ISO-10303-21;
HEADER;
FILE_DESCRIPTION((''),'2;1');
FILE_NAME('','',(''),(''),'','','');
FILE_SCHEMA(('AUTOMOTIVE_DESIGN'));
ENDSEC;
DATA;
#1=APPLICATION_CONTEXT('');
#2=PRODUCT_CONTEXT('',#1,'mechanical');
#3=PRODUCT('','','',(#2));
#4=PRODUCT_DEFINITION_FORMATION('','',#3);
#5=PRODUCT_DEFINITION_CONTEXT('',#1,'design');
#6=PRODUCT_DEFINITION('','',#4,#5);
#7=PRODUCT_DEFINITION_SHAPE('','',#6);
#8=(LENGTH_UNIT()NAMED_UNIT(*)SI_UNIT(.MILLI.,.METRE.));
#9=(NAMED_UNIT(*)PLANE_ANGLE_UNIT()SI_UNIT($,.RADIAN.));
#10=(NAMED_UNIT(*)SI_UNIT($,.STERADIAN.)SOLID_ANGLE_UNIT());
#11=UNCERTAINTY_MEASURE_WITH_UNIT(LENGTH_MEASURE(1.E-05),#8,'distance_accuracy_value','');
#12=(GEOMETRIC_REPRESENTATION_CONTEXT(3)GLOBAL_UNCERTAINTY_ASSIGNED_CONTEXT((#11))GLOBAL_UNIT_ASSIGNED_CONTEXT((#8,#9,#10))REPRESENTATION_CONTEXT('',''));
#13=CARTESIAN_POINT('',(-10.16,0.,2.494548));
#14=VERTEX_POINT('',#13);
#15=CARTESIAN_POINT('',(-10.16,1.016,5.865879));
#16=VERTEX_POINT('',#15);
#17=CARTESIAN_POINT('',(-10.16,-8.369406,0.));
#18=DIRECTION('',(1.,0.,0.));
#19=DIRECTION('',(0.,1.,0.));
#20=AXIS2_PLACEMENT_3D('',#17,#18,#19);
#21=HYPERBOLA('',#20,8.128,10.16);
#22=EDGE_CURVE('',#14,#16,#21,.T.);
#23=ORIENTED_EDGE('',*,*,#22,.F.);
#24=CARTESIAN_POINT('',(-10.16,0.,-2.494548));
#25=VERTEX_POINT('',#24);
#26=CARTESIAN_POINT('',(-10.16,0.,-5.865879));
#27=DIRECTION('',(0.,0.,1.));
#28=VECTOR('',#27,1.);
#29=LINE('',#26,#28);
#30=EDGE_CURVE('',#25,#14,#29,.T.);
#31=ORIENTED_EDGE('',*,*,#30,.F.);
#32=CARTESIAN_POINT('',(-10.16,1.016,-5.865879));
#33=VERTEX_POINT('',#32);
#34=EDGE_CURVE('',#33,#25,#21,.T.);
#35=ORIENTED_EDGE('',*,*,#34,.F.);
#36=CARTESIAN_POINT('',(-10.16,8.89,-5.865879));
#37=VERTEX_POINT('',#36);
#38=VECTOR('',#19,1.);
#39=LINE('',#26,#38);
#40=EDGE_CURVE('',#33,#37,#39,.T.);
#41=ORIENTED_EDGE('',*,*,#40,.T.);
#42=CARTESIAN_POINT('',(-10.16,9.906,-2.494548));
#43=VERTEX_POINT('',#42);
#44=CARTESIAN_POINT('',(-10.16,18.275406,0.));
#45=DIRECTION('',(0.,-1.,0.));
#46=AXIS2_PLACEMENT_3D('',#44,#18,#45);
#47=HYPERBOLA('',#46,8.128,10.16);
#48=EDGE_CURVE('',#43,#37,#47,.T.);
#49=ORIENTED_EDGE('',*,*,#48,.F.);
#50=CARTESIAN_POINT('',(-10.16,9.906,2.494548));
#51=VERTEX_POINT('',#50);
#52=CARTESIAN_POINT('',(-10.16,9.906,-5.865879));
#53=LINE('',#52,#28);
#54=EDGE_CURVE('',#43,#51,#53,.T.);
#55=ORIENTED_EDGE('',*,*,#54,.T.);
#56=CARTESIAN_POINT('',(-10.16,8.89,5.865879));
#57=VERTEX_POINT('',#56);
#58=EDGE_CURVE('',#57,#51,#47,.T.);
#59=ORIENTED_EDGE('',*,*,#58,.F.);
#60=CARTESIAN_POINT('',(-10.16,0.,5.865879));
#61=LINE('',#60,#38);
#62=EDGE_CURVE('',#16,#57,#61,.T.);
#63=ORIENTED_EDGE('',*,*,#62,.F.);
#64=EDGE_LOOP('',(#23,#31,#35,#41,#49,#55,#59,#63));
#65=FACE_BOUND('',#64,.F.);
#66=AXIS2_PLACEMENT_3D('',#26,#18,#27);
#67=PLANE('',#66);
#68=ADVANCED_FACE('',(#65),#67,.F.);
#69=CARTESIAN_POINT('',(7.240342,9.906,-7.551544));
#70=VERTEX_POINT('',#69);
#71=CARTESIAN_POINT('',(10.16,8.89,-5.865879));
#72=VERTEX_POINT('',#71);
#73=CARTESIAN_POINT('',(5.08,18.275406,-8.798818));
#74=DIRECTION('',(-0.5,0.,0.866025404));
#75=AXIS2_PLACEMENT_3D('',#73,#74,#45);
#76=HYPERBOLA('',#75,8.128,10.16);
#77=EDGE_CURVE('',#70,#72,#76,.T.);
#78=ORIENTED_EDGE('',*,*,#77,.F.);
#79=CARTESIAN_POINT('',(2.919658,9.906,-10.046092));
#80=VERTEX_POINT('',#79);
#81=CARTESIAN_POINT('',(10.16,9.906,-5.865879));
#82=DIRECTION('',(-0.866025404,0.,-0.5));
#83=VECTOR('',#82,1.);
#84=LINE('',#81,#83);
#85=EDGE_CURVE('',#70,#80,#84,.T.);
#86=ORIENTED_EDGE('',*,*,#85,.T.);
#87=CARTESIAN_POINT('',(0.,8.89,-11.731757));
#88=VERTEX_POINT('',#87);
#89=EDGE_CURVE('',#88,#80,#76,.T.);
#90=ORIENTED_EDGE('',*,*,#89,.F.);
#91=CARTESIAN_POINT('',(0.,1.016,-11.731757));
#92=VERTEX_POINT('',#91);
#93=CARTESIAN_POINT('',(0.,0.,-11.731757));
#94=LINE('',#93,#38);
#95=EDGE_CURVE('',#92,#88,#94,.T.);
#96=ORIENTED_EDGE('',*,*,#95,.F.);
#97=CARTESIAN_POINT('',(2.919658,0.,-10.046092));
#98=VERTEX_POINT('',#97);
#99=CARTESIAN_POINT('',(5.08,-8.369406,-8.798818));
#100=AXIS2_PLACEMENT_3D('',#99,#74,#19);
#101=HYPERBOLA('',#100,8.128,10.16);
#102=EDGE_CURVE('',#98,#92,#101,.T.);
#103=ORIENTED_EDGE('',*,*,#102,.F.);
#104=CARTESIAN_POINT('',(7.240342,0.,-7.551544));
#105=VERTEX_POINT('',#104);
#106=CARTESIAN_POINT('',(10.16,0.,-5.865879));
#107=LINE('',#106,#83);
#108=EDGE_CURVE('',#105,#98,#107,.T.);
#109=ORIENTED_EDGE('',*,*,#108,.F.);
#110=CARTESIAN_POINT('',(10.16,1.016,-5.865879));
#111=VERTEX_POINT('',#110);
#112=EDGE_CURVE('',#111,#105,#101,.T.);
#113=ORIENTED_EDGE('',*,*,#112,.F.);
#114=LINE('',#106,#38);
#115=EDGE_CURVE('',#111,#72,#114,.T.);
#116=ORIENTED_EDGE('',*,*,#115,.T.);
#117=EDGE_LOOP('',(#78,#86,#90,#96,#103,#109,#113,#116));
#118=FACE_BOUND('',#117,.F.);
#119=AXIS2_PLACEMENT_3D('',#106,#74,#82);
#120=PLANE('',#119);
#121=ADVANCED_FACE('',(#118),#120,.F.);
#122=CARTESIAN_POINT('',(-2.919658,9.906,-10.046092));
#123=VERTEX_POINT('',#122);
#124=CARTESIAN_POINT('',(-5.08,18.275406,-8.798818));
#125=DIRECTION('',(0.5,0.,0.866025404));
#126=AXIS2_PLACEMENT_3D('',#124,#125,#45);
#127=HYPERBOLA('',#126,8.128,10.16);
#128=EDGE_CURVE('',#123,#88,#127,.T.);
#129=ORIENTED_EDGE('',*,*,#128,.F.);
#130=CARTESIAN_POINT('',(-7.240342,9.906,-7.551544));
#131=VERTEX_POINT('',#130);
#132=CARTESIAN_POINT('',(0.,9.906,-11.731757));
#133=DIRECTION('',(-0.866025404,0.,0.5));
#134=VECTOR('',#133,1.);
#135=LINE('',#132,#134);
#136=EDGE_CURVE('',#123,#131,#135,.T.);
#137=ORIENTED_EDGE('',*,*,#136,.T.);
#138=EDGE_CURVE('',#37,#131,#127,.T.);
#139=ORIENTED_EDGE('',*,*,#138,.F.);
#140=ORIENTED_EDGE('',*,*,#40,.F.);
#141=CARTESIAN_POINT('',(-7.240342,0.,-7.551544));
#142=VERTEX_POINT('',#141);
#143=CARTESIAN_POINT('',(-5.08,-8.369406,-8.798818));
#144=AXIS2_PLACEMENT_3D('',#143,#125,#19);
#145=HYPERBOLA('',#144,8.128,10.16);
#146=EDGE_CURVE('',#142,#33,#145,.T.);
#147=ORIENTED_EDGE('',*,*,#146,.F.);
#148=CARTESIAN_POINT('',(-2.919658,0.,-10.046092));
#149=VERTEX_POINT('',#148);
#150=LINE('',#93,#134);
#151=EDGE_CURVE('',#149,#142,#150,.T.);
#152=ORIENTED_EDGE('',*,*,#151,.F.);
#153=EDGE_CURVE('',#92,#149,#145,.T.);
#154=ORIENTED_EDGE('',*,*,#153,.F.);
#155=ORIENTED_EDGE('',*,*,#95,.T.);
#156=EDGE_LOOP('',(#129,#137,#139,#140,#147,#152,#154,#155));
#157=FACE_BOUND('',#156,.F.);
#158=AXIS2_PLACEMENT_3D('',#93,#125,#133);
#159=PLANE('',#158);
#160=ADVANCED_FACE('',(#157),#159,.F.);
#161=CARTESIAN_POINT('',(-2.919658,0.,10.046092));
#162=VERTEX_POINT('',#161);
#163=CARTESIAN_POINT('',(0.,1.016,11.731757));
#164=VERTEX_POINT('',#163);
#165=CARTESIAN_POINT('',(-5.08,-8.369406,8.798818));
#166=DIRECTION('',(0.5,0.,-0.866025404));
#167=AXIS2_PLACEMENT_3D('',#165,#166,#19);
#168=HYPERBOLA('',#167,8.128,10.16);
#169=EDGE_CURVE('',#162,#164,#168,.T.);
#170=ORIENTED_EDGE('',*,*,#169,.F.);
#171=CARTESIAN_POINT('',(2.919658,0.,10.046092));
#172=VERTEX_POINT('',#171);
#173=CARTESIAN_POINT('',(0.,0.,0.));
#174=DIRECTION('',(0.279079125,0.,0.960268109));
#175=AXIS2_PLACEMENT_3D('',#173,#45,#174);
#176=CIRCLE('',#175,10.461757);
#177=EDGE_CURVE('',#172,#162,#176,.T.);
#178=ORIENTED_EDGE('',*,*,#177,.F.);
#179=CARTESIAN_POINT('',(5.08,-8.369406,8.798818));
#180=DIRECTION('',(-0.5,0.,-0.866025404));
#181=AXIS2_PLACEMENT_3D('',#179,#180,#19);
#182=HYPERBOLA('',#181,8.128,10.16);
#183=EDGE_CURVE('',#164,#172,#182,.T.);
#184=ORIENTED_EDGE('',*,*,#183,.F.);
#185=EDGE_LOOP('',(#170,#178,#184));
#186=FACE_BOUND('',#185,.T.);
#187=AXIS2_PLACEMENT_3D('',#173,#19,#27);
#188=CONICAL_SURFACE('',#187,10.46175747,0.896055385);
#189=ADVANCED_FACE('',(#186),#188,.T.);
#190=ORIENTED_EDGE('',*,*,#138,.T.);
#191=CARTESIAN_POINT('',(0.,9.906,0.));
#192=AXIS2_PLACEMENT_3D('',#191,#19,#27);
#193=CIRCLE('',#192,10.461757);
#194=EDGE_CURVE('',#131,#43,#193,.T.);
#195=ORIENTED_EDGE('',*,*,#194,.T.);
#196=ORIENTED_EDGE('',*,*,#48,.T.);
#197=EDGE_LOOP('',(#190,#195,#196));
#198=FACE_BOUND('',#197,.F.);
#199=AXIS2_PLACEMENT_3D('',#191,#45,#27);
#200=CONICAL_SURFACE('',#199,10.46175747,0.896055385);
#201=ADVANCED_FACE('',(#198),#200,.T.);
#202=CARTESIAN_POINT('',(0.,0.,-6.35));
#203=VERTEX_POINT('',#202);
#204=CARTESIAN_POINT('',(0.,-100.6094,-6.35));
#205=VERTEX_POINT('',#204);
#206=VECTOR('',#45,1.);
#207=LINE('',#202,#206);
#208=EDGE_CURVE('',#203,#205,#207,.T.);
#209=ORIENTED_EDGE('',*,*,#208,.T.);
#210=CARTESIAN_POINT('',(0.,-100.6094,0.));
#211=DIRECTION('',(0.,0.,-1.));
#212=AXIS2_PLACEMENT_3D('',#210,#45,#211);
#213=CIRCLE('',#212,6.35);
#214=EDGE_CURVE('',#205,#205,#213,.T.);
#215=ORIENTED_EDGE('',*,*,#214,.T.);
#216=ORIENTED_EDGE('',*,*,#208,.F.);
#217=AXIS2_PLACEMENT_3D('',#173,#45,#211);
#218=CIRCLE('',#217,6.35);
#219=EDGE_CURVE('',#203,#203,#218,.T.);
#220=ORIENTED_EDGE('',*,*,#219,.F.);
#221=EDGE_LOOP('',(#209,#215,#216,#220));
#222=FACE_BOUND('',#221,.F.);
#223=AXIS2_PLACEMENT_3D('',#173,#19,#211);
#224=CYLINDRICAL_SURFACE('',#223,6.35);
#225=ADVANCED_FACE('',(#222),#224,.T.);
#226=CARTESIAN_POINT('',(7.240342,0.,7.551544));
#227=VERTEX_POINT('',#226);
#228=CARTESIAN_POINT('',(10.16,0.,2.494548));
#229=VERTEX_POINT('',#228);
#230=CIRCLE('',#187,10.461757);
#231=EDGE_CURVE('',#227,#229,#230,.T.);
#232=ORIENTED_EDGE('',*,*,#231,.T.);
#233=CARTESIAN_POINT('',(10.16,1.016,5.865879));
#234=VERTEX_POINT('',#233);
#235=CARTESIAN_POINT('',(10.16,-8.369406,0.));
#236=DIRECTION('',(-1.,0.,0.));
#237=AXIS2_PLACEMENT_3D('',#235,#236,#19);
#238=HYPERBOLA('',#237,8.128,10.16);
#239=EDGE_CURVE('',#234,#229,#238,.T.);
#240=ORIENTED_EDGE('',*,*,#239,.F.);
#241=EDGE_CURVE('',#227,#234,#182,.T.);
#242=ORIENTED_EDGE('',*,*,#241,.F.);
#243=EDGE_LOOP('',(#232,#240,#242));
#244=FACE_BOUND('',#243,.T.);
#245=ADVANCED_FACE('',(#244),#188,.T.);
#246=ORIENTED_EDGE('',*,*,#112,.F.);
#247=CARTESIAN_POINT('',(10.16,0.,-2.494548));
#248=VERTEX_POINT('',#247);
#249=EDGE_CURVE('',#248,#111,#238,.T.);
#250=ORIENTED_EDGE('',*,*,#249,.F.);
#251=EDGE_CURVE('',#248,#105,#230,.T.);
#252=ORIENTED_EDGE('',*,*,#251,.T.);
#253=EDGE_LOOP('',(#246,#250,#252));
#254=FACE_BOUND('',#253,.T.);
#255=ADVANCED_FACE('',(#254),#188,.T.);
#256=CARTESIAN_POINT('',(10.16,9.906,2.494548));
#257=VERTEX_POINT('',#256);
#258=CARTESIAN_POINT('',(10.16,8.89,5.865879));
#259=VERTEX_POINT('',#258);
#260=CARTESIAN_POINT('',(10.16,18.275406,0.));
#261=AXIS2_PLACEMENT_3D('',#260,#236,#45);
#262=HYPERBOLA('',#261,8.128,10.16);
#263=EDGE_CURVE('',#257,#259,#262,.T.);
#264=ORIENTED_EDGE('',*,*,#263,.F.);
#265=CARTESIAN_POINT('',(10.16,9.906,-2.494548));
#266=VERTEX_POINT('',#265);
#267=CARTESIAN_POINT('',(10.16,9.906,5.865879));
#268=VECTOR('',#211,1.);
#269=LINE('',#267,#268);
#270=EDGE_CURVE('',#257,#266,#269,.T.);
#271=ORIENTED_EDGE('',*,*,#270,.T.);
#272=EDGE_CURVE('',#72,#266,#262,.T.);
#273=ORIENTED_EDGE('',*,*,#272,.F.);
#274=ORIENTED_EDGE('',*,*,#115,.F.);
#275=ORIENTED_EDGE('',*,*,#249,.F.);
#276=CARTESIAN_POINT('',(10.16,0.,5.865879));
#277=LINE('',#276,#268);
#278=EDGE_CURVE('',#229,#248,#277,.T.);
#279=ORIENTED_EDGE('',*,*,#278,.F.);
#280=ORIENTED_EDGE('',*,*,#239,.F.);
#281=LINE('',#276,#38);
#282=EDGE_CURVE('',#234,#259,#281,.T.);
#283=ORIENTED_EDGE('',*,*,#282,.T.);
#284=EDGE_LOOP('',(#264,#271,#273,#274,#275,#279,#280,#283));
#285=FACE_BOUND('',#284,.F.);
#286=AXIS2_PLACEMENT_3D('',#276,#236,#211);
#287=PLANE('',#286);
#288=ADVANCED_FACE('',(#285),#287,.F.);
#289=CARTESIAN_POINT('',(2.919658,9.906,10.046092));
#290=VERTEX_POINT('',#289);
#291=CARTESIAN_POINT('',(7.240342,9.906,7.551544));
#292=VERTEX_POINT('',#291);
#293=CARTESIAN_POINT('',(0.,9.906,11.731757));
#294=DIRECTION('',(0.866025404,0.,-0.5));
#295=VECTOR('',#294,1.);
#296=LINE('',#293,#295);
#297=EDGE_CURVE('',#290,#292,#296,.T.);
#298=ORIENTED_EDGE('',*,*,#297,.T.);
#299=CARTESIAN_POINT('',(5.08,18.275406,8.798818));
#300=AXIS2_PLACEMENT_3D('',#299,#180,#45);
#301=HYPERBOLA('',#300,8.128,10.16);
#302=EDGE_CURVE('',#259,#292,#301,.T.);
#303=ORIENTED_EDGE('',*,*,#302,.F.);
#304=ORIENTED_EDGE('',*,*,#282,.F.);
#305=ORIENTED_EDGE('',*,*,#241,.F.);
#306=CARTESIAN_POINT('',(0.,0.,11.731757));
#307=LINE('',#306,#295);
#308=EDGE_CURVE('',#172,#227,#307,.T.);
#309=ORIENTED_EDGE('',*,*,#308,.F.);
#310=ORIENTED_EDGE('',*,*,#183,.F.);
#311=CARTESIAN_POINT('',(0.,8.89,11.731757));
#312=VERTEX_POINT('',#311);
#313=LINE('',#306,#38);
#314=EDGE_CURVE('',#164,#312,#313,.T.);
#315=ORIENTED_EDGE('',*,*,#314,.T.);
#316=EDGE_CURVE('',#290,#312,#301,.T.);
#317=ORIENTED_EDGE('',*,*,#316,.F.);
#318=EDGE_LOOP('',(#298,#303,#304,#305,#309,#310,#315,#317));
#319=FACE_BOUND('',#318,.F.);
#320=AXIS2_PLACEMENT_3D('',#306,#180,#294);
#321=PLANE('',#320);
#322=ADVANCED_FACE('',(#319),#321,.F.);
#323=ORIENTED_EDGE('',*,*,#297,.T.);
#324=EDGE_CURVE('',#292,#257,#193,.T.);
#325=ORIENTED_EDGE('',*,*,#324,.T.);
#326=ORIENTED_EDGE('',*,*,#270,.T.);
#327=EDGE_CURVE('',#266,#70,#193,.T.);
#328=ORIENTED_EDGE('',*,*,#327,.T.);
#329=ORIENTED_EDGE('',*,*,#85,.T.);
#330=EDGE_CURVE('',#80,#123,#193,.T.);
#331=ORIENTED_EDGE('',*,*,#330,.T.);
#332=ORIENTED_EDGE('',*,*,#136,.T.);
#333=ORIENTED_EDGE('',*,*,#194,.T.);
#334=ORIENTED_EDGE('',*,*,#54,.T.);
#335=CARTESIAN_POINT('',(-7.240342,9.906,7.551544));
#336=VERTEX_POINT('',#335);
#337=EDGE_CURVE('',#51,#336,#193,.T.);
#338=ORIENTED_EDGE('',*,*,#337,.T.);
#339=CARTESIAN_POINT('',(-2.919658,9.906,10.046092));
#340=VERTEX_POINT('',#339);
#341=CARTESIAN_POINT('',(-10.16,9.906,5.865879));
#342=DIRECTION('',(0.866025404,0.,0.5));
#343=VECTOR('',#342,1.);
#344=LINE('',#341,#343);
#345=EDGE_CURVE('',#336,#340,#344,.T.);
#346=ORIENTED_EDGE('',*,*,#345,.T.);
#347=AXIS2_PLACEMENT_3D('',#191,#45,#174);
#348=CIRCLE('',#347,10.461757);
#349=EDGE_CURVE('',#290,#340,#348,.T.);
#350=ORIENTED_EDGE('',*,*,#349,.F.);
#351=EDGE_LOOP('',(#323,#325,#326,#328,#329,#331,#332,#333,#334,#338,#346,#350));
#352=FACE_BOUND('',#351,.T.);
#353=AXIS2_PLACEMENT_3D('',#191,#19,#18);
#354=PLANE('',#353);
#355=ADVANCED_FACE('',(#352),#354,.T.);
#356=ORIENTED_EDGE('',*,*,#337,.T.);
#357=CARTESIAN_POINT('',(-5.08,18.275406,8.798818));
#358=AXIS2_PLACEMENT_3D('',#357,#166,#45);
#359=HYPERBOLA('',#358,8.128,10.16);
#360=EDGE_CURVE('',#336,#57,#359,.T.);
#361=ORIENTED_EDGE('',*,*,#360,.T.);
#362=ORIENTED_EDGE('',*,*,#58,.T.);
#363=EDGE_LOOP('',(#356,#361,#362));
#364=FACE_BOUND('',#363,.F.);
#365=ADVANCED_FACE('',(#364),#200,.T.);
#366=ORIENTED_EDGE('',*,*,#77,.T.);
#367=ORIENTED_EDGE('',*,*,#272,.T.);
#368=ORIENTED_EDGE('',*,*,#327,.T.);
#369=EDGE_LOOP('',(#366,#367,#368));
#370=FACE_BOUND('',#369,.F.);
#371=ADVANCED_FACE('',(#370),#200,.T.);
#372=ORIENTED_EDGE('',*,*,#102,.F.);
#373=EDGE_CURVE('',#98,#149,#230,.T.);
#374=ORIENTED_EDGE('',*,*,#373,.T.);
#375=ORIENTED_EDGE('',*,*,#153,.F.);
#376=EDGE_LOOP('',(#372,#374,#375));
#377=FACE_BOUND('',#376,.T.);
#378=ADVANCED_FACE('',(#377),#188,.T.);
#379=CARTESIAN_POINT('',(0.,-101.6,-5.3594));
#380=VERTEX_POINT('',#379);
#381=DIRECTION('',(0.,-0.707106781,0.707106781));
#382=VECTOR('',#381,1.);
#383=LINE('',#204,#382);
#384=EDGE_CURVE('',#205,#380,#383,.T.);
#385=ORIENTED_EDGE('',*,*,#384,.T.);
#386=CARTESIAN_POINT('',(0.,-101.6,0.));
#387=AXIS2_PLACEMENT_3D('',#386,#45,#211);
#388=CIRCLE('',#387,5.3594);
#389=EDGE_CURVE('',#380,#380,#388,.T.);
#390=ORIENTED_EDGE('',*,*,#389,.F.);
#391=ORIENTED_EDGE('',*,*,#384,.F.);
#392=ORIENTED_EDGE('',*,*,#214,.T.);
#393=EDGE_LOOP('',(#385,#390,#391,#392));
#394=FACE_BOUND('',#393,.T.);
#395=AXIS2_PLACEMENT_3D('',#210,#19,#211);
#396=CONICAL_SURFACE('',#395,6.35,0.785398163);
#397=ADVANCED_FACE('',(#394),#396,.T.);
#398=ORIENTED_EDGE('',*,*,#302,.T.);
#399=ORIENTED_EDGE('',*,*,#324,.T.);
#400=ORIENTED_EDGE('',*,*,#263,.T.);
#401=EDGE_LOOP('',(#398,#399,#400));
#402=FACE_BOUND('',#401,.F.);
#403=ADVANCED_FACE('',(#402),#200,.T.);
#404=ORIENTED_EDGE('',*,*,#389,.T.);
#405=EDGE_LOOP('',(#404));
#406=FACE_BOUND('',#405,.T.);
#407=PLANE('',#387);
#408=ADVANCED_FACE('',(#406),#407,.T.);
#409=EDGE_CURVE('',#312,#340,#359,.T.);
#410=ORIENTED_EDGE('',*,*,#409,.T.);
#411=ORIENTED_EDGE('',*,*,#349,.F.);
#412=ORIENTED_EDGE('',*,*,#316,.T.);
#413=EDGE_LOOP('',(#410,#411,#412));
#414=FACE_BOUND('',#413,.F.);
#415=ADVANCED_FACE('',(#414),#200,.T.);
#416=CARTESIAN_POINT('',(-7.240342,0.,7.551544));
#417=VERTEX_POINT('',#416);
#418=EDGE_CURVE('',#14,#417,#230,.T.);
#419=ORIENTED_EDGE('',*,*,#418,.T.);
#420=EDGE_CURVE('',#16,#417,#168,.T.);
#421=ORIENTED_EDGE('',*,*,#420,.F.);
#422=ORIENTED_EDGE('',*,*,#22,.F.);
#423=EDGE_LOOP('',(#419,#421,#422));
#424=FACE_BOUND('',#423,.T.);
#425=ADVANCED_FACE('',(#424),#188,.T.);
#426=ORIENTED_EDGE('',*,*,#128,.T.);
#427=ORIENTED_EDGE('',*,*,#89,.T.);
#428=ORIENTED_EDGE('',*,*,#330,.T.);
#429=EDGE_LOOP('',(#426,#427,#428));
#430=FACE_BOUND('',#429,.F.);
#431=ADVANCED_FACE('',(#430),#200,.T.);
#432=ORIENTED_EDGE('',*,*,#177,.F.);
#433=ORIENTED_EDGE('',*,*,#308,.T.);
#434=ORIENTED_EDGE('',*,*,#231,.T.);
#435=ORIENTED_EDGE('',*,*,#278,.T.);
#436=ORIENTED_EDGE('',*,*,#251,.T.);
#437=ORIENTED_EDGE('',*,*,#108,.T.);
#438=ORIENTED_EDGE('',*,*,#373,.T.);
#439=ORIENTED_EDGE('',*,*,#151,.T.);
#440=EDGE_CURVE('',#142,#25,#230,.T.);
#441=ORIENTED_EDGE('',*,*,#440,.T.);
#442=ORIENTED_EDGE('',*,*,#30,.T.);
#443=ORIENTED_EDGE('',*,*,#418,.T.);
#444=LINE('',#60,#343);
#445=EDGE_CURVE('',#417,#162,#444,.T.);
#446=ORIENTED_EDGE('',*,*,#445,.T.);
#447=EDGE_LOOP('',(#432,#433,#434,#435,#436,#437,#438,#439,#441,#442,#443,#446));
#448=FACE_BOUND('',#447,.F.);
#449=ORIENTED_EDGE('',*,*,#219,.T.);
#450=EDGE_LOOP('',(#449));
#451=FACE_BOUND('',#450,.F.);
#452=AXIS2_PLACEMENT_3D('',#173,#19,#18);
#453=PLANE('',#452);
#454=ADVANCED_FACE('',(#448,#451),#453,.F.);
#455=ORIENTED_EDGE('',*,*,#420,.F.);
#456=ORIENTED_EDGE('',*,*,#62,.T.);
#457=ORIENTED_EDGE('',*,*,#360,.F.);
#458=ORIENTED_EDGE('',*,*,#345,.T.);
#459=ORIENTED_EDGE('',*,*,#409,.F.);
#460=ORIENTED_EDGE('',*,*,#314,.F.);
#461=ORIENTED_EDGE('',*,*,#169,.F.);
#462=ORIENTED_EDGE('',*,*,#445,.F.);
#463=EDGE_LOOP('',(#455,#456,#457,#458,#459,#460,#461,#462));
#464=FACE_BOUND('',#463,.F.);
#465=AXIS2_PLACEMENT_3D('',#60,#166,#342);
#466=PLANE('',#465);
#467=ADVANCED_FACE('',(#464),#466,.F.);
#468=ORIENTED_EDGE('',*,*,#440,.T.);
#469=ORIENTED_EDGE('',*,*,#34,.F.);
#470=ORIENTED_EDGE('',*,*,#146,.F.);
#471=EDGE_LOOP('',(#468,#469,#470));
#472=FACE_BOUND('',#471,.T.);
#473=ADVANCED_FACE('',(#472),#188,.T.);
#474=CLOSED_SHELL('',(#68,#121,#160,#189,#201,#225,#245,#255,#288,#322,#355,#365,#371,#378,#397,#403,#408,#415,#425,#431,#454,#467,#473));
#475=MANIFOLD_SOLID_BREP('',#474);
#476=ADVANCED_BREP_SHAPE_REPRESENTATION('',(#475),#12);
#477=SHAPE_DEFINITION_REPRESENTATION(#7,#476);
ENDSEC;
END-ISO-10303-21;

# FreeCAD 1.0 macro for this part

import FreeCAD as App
import Part
import Sketcher
Q = App.Units.Quantity


def edges_at(feature, points):
    """Names of the edges that pass closest to the given points."""
    edges = feature.Shape.Edges
    near = lambda p: min(range(len(edges)), key=lambda i: edges[i].distToShape(Part.Vertex(*p))[0])
    return sorted({f"Edge{near(p) + 1}" for p in points})


def add_polygon(sketch, points):
    """Adds a closed chain of lines whose ends are joined by coincident constraints."""
    first, n = sketch.GeometryCount, len(points)
    for a, b in zip(points, points[1:] + points[:1]):
        sketch.addGeometry(Part.LineSegment(App.Vector(*a, 0), App.Vector(*b, 0)), False)
    for i in range(n):
        sketch.addConstraint(Sketcher.Constraint("Coincident", first + i, 2, first + (i + 1) % n, 1))

doc = App.newDocument("Part")
body = doc.addObject("PartDesign::Body", "Body")

# Sketch on XZ plane
sketch1 = body.newObject("Sketcher::SketchObject", "Sketch")
sketch1.AttachmentSupport = (doc.getObject("XZ_Plane"), [""])
sketch1.MapMode = "FlatFace"
add_polygon(sketch1, [(0, 11.731757), (10.16, 5.865879), (10.16, -5.865879), (0, -11.731757), (-10.16, -5.865879), (-10.16, 5.865879)])  # lines 0-5
sketch1.addConstraint([
    Sketcher.Constraint("Vertical", 1),
    Sketcher.Constraint("Vertical", 4),
    Sketcher.Constraint("Symmetric", 0, 2, 3, 2, -1, 1),
    Sketcher.Constraint("Symmetric", 2, 2, 5, 2, -1, 1),
    Sketcher.Constraint("PointOnObject", 2, 2, -2),
    Sketcher.Constraint("Parallel", 2, 5),
    Sketcher.Constraint("Horizontal", 1, 2, 3, 2),
    Sketcher.Constraint("Angle", 0, Q("-30 deg")),
    Sketcher.Constraint("DistanceX", -1, 1, 0, 2, Q("0.4 in")),
    Sketcher.Constraint("DistanceY", 1, 2, 1, 1, 11.731757),
])
pad1 = body.newObject("PartDesign::Pad", "Pad")
pad1.Profile = sketch1
pad1.Length = Q("0.39 in")
pad1.Reversed = True

# Sketch on XZ plane
sketch2 = body.newObject("Sketcher::SketchObject", "Sketch001")
sketch2.AttachmentSupport = (doc.getObject("XZ_Plane"), [""])
sketch2.MapMode = "FlatFace"
sketch2.addGeometry(Part.Circle(App.Vector(0, 0, 0), App.Vector(0, 0, 1), 6.35), False)
sketch2.addConstraint([
    Sketcher.Constraint("Coincident", 0, 3, -1, 1),
    Sketcher.Constraint("Diameter", 0, Q("0.5 in")),
])
pad2 = body.newObject("PartDesign::Pad", "Pad001")
pad2.Profile = sketch2
pad2.Length = Q("4 in")
doc.recompute()

chamfer = body.newObject("PartDesign::Chamfer", "Chamfer")
chamfer.Base = (pad2, edges_at(pad2, [(0, -101.6, 6.35)]))
chamfer.Size = Q("0.039 in")

# Sketch on YZ plane
sketch3 = body.newObject("Sketcher::SketchObject", "Sketch002")
sketch3.AttachmentSupport = (doc.getObject("YZ_Plane"), [""])
sketch3.MapMode = "FlatFace"
add_polygon(sketch3, [(9.906, 10.461757), (9.906, 11.731757), (8.89, 11.731757)])  # lines 0-2
add_polygon(sketch3, [(0, 11.731757), (0, 10.461757), (1.016, 11.731757)])  # lines 3-5
sketch3.addConstraint([
    Sketcher.Constraint("Vertical", 0),
    Sketcher.Constraint("Horizontal", 1),
    Sketcher.Constraint("Vertical", 3),
    Sketcher.Constraint("Horizontal", 5),
    Sketcher.Constraint("PointOnObject", 3, 2, -2),
    Sketcher.Constraint("Horizontal", 2, 2, 3, 2),
    Sketcher.Constraint("Horizontal", 1, 2, 4, 2),
    Sketcher.Constraint("Equal", 1, 5),
    Sketcher.Constraint("DistanceX", 1, 2, 1, 1, Q("0.04 in")),
    Sketcher.Constraint("DistanceY", 0, 1, 0, 2, Q("0.05 in")),
    Sketcher.Constraint("DistanceX", -1, 1, 0, 2, Q("0.39 in")),
    Sketcher.Constraint("DistanceY", -1, 1, 0, 2, 11.731757),
])
groove = body.newObject("PartDesign::Groove", "Groove")
groove.Profile = sketch3
groove.ReferenceAxis = (sketch3, ["H_Axis"])
groove.Angle = 360

doc.recompute()
